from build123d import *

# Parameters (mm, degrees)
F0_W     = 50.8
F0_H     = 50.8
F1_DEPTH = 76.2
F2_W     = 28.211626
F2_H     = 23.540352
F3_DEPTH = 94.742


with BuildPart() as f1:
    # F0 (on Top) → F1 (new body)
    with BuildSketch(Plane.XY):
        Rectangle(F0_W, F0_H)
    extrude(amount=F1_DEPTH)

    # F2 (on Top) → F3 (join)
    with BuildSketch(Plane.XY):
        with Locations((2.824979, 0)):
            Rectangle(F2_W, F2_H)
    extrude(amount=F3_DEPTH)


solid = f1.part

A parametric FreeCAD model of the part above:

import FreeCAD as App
import Part
import Sketcher

V = App.Vector
Q = App.Units.Quantity

doc = App.newDocument("Part")
body = doc.addObject("PartDesign::Body", "Body")

sketch1 = doc.addObject("Sketcher::SketchObject", "Sketch")
body.addObject(sketch1)
sketch1.AttachmentSupport = (doc.XY_Plane, [""])
sketch1.MapMode = "FlatFace"
sketch1.addGeometry(Part.LineSegment(V(-25.4, 25.4, 0), V(-25.4, -25.4, 0)), False)
sketch1.addGeometry(Part.LineSegment(V(-25.4, -25.4, 0), V(25.4, -25.4, 0)), False)
sketch1.addGeometry(Part.LineSegment(V(25.4, -25.4, 0), V(25.4, 25.4, 0)), False)
sketch1.addGeometry(Part.LineSegment(V(25.4, 25.4, 0), V(-25.4, 25.4, 0)), False)
sketch1.addConstraint(Sketcher.Constraint("Coincident", 0, 2, 1, 1))
sketch1.addConstraint(Sketcher.Constraint("Coincident", 1, 2, 2, 1))
sketch1.addConstraint(Sketcher.Constraint("Coincident", 2, 2, 3, 1))
sketch1.addConstraint(Sketcher.Constraint("Coincident", 3, 2, 0, 1))
sketch1.addConstraint(Sketcher.Constraint("Vertical", 0))
sketch1.addConstraint(Sketcher.Constraint("Horizontal", 1))
sketch1.addConstraint(Sketcher.Constraint("Vertical", 2))
sketch1.addConstraint(Sketcher.Constraint("Horizontal", 3))
sketch1.addConstraint(Sketcher.Constraint("Symmetric", 0, 2, 2, 2, -1, 1))
sketch1.addConstraint(Sketcher.Constraint("Equal", 3, 0))
sketch1.addConstraint(Sketcher.Constraint("DistanceX", 1, 1, 1, 2, Q("2 in")))
pad1 = doc.addObject("PartDesign::Pad", "Pad")
body.addObject(pad1)
pad1.Profile = sketch1
pad1.Length = Q("3 in")

sketch2 = doc.addObject("Sketcher::SketchObject", "Sketch001")
body.addObject(sketch2)
sketch2.AttachmentSupport = (doc.XY_Plane, [""])
sketch2.MapMode = "FlatFace"
sketch2.addGeometry(Part.LineSegment(V(-11.280834, 11.770176, 0), V(-11.280834, -11.770176, 0)), False)
sketch2.addGeometry(Part.LineSegment(V(-11.280834, -11.770176, 0), V(16.930792, -11.770176, 0)), False)
sketch2.addGeometry(Part.LineSegment(V(16.930792, -11.770176, 0), V(16.930792, 11.770176, 0)), False)
sketch2.addGeometry(Part.LineSegment(V(16.930792, 11.770176, 0), V(-11.280834, 11.770176, 0)), False)
sketch2.addConstraint(Sketcher.Constraint("Coincident", 0, 2, 1, 1))
sketch2.addConstraint(Sketcher.Constraint("Coincident", 1, 2, 2, 1))
sketch2.addConstraint(Sketcher.Constraint("Coincident", 2, 2, 3, 1))
sketch2.addConstraint(Sketcher.Constraint("Coincident", 3, 2, 0, 1))
sketch2.addConstraint(Sketcher.Constraint("Vertical", 0))
sketch2.addConstraint(Sketcher.Constraint("Horizontal", 1))
sketch2.addConstraint(Sketcher.Constraint("Vertical", 2))
sketch2.addConstraint(Sketcher.Constraint("Horizontal", 3))
sketch2.addConstraint(Sketcher.Constraint("DistanceY", 0, 2, 0, 1, Q("23.540352 mm")))
sketch2.addConstraint(Sketcher.Constraint("DistanceX", 1, 1, 1, 2, Q("28.211626 mm")))
sketch2.addConstraint(Sketcher.Constraint("DistanceX", 0, 2, -1, 1, Q("11.280834 mm")))
sketch2.addConstraint(Sketcher.Constraint("DistanceY", 0, 2, -1, 1, Q("11.770176 mm")))
pad2 = doc.addObject("PartDesign::Pad", "Pad001")
body.addObject(pad2)
pad2.Profile = sketch2
pad2.Length = Q("3.73 in")

doc.recompute()
